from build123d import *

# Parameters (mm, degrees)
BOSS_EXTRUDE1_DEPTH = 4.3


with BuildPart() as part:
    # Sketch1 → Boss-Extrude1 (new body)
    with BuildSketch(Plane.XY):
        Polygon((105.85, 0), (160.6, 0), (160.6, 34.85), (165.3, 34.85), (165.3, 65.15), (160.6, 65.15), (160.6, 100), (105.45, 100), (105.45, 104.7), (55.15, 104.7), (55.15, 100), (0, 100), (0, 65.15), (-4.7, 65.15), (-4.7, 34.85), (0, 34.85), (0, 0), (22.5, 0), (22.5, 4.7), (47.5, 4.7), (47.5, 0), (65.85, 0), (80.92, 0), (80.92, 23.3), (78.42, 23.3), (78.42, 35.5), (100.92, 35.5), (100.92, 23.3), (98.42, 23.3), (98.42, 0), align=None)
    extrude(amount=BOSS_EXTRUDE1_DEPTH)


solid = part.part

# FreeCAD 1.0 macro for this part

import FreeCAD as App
import Part
import Sketcher
from FreeCAD import Vector
Q = App.Units.Quantity

doc = App.newDocument("Part")
body = doc.addObject("PartDesign::Body", "Body")

# Sketch on XY plane
sketch1 = doc.addObject("Sketcher::SketchObject", "Sketch")
body.addObject(sketch1)
sketch1.AttachmentSupport = (doc.XY_Plane, [""])
sketch1.MapMode = "FlatFace"
sketch1.addGeometry([
    Part.LineSegment(Vector(160.6, 0, 0), Vector(160.6, 34.9, 0)),  # 0
    Part.LineSegment(Vector(160.6, 34.9, 0), Vector(165.3, 34.9, 0)),  # 1
    Part.LineSegment(Vector(165.3, 34.9, 0), Vector(165.3, 65.2, 0)),  # 2
    Part.LineSegment(Vector(165.3, 65.2, 0), Vector(160.6, 65.2, 0)),  # 3
    Part.LineSegment(Vector(160.6, 65.2, 0), Vector(160.6, 100, 0)),  # 4
    Part.LineSegment(Vector(160.6, 100, 0), Vector(105.5, 100, 0)),  # 5
    Part.LineSegment(Vector(105.5, 100, 0), Vector(105.5, 104.7, 0)),  # 6
    Part.LineSegment(Vector(105.5, 104.7, 0), Vector(55.1, 104.7, 0)),  # 7
    Part.LineSegment(Vector(55.1, 104.7, 0), Vector(55.1, 100, 0)),  # 8
    Part.LineSegment(Vector(55.1, 100, 0), Vector(0, 100, 0)),  # 9
    Part.LineSegment(Vector(0, 100, 0), Vector(0, 65.2, 0)),  # 10
    Part.LineSegment(Vector(0, 65.2, 0), Vector(-4.7, 65.2, 0)),  # 11
    Part.LineSegment(Vector(-4.7, 65.2, 0), Vector(-4.7, 34.9, 0)),  # 12
    Part.LineSegment(Vector(-4.7, 34.9, 0), Vector(0, 34.9, 0)),  # 13
    Part.LineSegment(Vector(0, 34.9, 0), Vector(0, 0, 0)),  # 14
    Part.LineSegment(Vector(0, 0, 0), Vector(22.5, 0, 0)),  # 15
    Part.LineSegment(Vector(22.5, 0, 0), Vector(22.5, 4.7, 0)),  # 16
    Part.LineSegment(Vector(22.5, 4.7, 0), Vector(47.5, 4.7, 0)),  # 17
    Part.LineSegment(Vector(47.5, 4.7, 0), Vector(47.5, 0, 0)),  # 18
    Part.LineSegment(Vector(47.5, 0, 0), Vector(80.9, 0, 0)),  # 19
    Part.LineSegment(Vector(80.9, 0, 0), Vector(80.9, 23.3, 0)),  # 20
    Part.LineSegment(Vector(80.9, 23.3, 0), Vector(78.4, 23.3, 0)),  # 21
    Part.LineSegment(Vector(78.4, 23.3, 0), Vector(78.4, 35.5, 0)),  # 22
    Part.LineSegment(Vector(78.4, 35.5, 0), Vector(100.9, 35.5, 0)),  # 23
    Part.LineSegment(Vector(100.9, 35.5, 0), Vector(100.9, 23.3, 0)),  # 24
    Part.LineSegment(Vector(100.9, 23.3, 0), Vector(98.4, 23.3, 0)),  # 25
    Part.LineSegment(Vector(98.4, 23.3, 0), Vector(98.4, 0, 0)),  # 26
    Part.LineSegment(Vector(98.4, 0, 0), Vector(160.6, 0, 0)),  # 27
], False)
sketch1.addConstraint([
    Sketcher.Constraint("Coincident", 0, 2, 1, 1),
    Sketcher.Constraint("Coincident", 1, 2, 2, 1),
    Sketcher.Constraint("Coincident", 2, 2, 3, 1),
    Sketcher.Constraint("Coincident", 3, 2, 4, 1),
    Sketcher.Constraint("Coincident", 4, 2, 5, 1),
    Sketcher.Constraint("Coincident", 5, 2, 6, 1),
    Sketcher.Constraint("Coincident", 6, 2, 7, 1),
    Sketcher.Constraint("Coincident", 7, 2, 8, 1),
    Sketcher.Constraint("Coincident", 8, 2, 9, 1),
    Sketcher.Constraint("Coincident", 9, 2, 10, 1),
    Sketcher.Constraint("Coincident", 10, 2, 11, 1),
    Sketcher.Constraint("Coincident", 11, 2, 12, 1),
    Sketcher.Constraint("Coincident", 12, 2, 13, 1),
    Sketcher.Constraint("Coincident", 13, 2, 14, 1),
    Sketcher.Constraint("Coincident", 14, 2, 15, 1),
    Sketcher.Constraint("Coincident", 15, 2, 16, 1),
    Sketcher.Constraint("Coincident", 16, 2, 17, 1),
    Sketcher.Constraint("Coincident", 17, 2, 18, 1),
    Sketcher.Constraint("Coincident", 18, 2, 19, 1),
    Sketcher.Constraint("Coincident", 19, 2, 20, 1),
    Sketcher.Constraint("Coincident", 20, 2, 21, 1),
    Sketcher.Constraint("Coincident", 21, 2, 22, 1),
    Sketcher.Constraint("Coincident", 22, 2, 23, 1),
    Sketcher.Constraint("Coincident", 23, 2, 24, 1),
    Sketcher.Constraint("Coincident", 24, 2, 25, 1),
    Sketcher.Constraint("Coincident", 25, 2, 26, 1),
    Sketcher.Constraint("Coincident", 26, 2, 27, 1),
    Sketcher.Constraint("Coincident", 27, 2, 0, 1),
    Sketcher.Constraint("Vertical", 0),
    Sketcher.Constraint("Horizontal", 1),
    Sketcher.Constraint("Vertical", 2),
    Sketcher.Constraint("Horizontal", 3),
    Sketcher.Constraint("Vertical", 4),
    Sketcher.Constraint("Horizontal", 5),
    Sketcher.Constraint("Vertical", 6),
    Sketcher.Constraint("Horizontal", 7),
    Sketcher.Constraint("Vertical", 8),
    Sketcher.Constraint("Horizontal", 9),
    Sketcher.Constraint("Vertical", 10),
    Sketcher.Constraint("Horizontal", 11),
    Sketcher.Constraint("Vertical", 12),
    Sketcher.Constraint("Horizontal", 13),
    Sketcher.Constraint("Vertical", 14),
    Sketcher.Constraint("Horizontal", 15),
    Sketcher.Constraint("Vertical", 16),
    Sketcher.Constraint("Horizontal", 17),
    Sketcher.Constraint("Vertical", 18),
    Sketcher.Constraint("Horizontal", 19),
    Sketcher.Constraint("Vertical", 20),
    Sketcher.Constraint("Horizontal", 21),
    Sketcher.Constraint("Vertical", 22),
    Sketcher.Constraint("Horizontal", 23),
    Sketcher.Constraint("Vertical", 24),
    Sketcher.Constraint("Horizontal", 25),
    Sketcher.Constraint("Vertical", 26),
    Sketcher.Constraint("Horizontal", 27),
    Sketcher.Constraint("Coincident", 14, 2, -1, 1),
    Sketcher.Constraint("PointOnObject", 9, 2, -2),
    Sketcher.Constraint("PointOnObject", 18, 2, -1),
    Sketcher.Constraint("PointOnObject", 26, 2, -1),
    Sketcher.Constraint("Horizontal", 5, 2, 8, 2),
    Sketcher.Constraint("Horizontal", 3, 2, 10, 2),
    Sketcher.Constraint("Horizontal", 1, 2, 12, 2),
    Sketcher.Constraint("Horizontal", 21, 2, 24, 2),
    Sketcher.Constraint("Vertical", 0, 2, 3, 2),
    Sketcher.Constraint("Equal", 5, 9),
    Sketcher.Constraint("Equal", 3, 11),
    Sketcher.Constraint("Equal", 15, 23),
    Sketcher.Constraint("Equal", 21, 25),
    Sketcher.Constraint("Equal", 0, 4),
    Sketcher.Constraint("Equal", 13, 6),
    Sketcher.Constraint("Equal", 8, 16),
    Sketcher.Constraint("DistanceX", 17, 1, 17, 2, Q("25 mm")),
    Sketcher.Constraint("DistanceX", 1, 1, 1, 2, Q("4.7 mm")),
    Sketcher.Constraint("DistanceX", 7, 2, 7, 1, Q("50.3 mm")),
    Sketcher.Constraint("DistanceX", 15, 1, 15, 2, Q("22.5 mm")),
    Sketcher.Constraint("DistanceX", 21, 2, 21, 1, Q("2.5 mm")),
    Sketcher.Constraint("DistanceY", 2, 1, 2, 2, Q("30.3 mm")),
    Sketcher.Constraint("DistanceY", 20, 1, 20, 2, Q("23.3 mm")),
    Sketcher.Constraint("DistanceY", 22, 1, 22, 2, Q("12.2 mm")),
    Sketcher.Constraint("DistanceY", -1, 1, 4, 2, Q("100 mm")),
    Sketcher.Constraint("DistanceX", 5, 2, 5, 1, Q("55.15 mm")),
    Sketcher.Constraint("DistanceX", 19, 1, 19, 2, Q("33.42 mm")),
])
pad1 = doc.addObject("PartDesign::Pad", "Pad")
body.addObject(pad1)
pad1.Profile = sketch1
pad1.Length = 4.3

doc.recompute()
